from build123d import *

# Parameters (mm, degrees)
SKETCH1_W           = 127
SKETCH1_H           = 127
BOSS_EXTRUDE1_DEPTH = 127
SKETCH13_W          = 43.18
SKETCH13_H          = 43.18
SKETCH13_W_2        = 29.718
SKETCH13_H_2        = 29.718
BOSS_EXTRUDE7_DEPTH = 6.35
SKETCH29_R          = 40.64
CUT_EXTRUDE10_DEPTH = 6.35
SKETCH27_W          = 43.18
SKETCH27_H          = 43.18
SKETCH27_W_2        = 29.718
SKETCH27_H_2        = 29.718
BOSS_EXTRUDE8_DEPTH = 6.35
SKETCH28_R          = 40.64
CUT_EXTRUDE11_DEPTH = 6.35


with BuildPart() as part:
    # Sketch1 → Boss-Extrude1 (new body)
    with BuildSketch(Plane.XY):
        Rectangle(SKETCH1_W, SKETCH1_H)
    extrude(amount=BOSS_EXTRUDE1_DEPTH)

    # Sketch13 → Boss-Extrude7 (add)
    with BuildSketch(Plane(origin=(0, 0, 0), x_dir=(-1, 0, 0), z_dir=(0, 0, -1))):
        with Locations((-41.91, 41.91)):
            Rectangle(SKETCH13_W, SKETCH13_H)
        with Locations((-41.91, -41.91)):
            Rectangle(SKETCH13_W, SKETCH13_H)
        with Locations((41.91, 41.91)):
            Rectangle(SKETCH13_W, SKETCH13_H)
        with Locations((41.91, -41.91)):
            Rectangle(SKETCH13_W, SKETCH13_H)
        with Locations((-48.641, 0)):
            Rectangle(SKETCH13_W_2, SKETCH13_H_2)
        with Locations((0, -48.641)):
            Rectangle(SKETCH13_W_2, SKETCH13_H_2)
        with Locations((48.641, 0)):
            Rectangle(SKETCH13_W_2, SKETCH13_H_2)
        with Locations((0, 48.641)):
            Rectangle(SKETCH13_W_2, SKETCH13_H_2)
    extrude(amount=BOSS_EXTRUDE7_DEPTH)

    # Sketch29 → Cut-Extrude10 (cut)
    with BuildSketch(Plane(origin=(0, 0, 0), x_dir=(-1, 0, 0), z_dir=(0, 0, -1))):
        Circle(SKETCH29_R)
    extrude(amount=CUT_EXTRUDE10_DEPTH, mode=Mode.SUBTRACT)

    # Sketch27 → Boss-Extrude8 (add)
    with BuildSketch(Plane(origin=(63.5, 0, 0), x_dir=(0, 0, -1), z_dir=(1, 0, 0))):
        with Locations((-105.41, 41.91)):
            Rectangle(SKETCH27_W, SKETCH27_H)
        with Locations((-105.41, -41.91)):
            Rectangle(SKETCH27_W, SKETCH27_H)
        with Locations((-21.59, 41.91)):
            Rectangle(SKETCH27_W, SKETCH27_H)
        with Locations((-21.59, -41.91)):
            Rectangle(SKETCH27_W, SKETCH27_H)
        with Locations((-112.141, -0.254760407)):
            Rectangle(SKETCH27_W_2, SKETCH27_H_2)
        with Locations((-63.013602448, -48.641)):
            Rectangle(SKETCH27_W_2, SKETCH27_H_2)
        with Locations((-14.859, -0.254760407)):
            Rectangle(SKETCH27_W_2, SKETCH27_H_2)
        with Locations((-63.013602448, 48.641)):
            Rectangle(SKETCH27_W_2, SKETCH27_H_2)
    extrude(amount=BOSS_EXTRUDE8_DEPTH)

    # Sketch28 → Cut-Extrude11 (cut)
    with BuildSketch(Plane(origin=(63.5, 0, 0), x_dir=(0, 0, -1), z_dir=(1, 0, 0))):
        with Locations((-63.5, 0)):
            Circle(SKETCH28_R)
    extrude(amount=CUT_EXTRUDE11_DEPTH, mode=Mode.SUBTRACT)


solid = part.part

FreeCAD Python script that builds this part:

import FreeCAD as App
import Part
import Sketcher
from FreeCAD import Vector
Q = App.Units.Quantity

doc = App.newDocument("Part")
body = doc.addObject("PartDesign::Body", "Body")

# Sketch on XY plane
sketch1 = body.newObject("Sketcher::SketchObject", "Sketch")
sketch1.AttachmentSupport = (doc.getObject("XY_Plane"), [""])
sketch1.MapMode = "FlatFace"
sketch1.addGeometry(Part.LineSegment(Vector(-64, 64, 0), Vector(-64, -64, 0)), False)
sketch1.addGeometry(Part.LineSegment(Vector(-64, -64, 0), Vector(64, -64, 0)), False)
sketch1.addGeometry(Part.LineSegment(Vector(64, -64, 0), Vector(64, 64, 0)), False)
sketch1.addGeometry(Part.LineSegment(Vector(64, 64, 0), Vector(-64, 64, 0)), False)
sketch1.addConstraint(Sketcher.Constraint("Coincident", 0, 2, 1, 1))
sketch1.addConstraint(Sketcher.Constraint("Coincident", 1, 2, 2, 1))
sketch1.addConstraint(Sketcher.Constraint("Coincident", 2, 2, 3, 1))
sketch1.addConstraint(Sketcher.Constraint("Coincident", 3, 2, 0, 1))
sketch1.addConstraint(Sketcher.Constraint("Vertical", 0))
sketch1.addConstraint(Sketcher.Constraint("Horizontal", 1))
sketch1.addConstraint(Sketcher.Constraint("Vertical", 2))
sketch1.addConstraint(Sketcher.Constraint("Horizontal", 3))
sketch1.addConstraint(Sketcher.Constraint("Symmetric", 0, 2, 2, 2, -1, 1))
sketch1.addConstraint(Sketcher.Constraint("Equal", 3, 0))
sketch1.addConstraint(Sketcher.Constraint("DistanceX", 1, 1, 1, 2, Q("5 in")))
pad1 = body.newObject("PartDesign::Pad", "Pad")
pad1.Profile = sketch1
pad1.Length = Q("5 in")

# Sketch on XY plane
sketch2 = body.newObject("Sketcher::SketchObject", "Sketch001")
sketch2.AttachmentSupport = (doc.getObject("XY_Plane"), [""])
sketch2.MapMode = "FlatFace"
sketch2.addGeometry(Part.LineSegment(Vector(64, 64, 0), Vector(64, 20, 0)), False)
sketch2.addGeometry(Part.LineSegment(Vector(64, 20, 0), Vector(20, 20, 0)), False)
sketch2.addGeometry(Part.LineSegment(Vector(20, 20, 0), Vector(20, 64, 0)), False)
sketch2.addGeometry(Part.LineSegment(Vector(20, 64, 0), Vector(64, 64, 0)), False)
sketch2.addGeometry(Part.LineSegment(Vector(64, -20, 0), Vector(64, -64, 0)), False)
sketch2.addGeometry(Part.LineSegment(Vector(64, -64, 0), Vector(20, -64, 0)), False)
sketch2.addGeometry(Part.LineSegment(Vector(20, -64, 0), Vector(20, -20, 0)), False)
sketch2.addGeometry(Part.LineSegment(Vector(20, -20, 0), Vector(64, -20, 0)), False)
sketch2.addGeometry(Part.LineSegment(Vector(-20, 64, 0), Vector(-20, 20, 0)), False)
sketch2.addGeometry(Part.LineSegment(Vector(-20, 20, 0), Vector(-64, 20, 0)), False)
sketch2.addGeometry(Part.LineSegment(Vector(-64, 20, 0), Vector(-64, 64, 0)), False)
sketch2.addGeometry(Part.LineSegment(Vector(-64, 64, 0), Vector(-20, 64, 0)), False)
sketch2.addGeometry(Part.LineSegment(Vector(-20, -20, 0), Vector(-20, -64, 0)), False)
sketch2.addGeometry(Part.LineSegment(Vector(-20, -64, 0), Vector(-64, -64, 0)), False)
sketch2.addGeometry(Part.LineSegment(Vector(-64, -64, 0), Vector(-64, -20, 0)), False)
sketch2.addGeometry(Part.LineSegment(Vector(-64, -20, 0), Vector(-20, -20, 0)), False)
sketch2.addGeometry(Part.LineSegment(Vector(64, 15, 0), Vector(64, -15, 0)), False)
sketch2.addGeometry(Part.LineSegment(Vector(64, -15, 0), Vector(34, -15, 0)), False)
sketch2.addGeometry(Part.LineSegment(Vector(34, -15, 0), Vector(34, 15, 0)), False)
sketch2.addGeometry(Part.LineSegment(Vector(34, 15, 0), Vector(64, 15, 0)), False)
sketch2.addGeometry(Part.LineSegment(Vector(15, -34, 0), Vector(15, -64, 0)), False)
sketch2.addGeometry(Part.LineSegment(Vector(15, -64, 0), Vector(-15, -64, 0)), False)
sketch2.addGeometry(Part.LineSegment(Vector(-15, -64, 0), Vector(-15, -34, 0)), False)
sketch2.addGeometry(Part.LineSegment(Vector(-15, -34, 0), Vector(15, -34, 0)), False)
sketch2.addGeometry(Part.LineSegment(Vector(-34, 15, 0), Vector(-34, -15, 0)), False)
sketch2.addGeometry(Part.LineSegment(Vector(-34, -15, 0), Vector(-64, -15, 0)), False)
sketch2.addGeometry(Part.LineSegment(Vector(-64, -15, 0), Vector(-64, 15, 0)), False)
sketch2.addGeometry(Part.LineSegment(Vector(-64, 15, 0), Vector(-34, 15, 0)), False)
sketch2.addGeometry(Part.LineSegment(Vector(15, 64, 0), Vector(15, 34, 0)), False)
sketch2.addGeometry(Part.LineSegment(Vector(15, 34, 0), Vector(-15, 34, 0)), False)
sketch2.addGeometry(Part.LineSegment(Vector(-15, 34, 0), Vector(-15, 64, 0)), False)
sketch2.addGeometry(Part.LineSegment(Vector(-15, 64, 0), Vector(15, 64, 0)), False)
sketch2.addConstraint(Sketcher.Constraint("Coincident", 0, 2, 1, 1))
sketch2.addConstraint(Sketcher.Constraint("Coincident", 1, 2, 2, 1))
sketch2.addConstraint(Sketcher.Constraint("Coincident", 2, 2, 3, 1))
sketch2.addConstraint(Sketcher.Constraint("Coincident", 3, 2, 0, 1))
sketch2.addConstraint(Sketcher.Constraint("Coincident", 4, 2, 5, 1))
sketch2.addConstraint(Sketcher.Constraint("Coincident", 5, 2, 6, 1))
sketch2.addConstraint(Sketcher.Constraint("Coincident", 6, 2, 7, 1))
sketch2.addConstraint(Sketcher.Constraint("Coincident", 7, 2, 4, 1))
sketch2.addConstraint(Sketcher.Constraint("Coincident", 8, 2, 9, 1))
sketch2.addConstraint(Sketcher.Constraint("Coincident", 9, 2, 10, 1))
sketch2.addConstraint(Sketcher.Constraint("Coincident", 10, 2, 11, 1))
sketch2.addConstraint(Sketcher.Constraint("Coincident", 11, 2, 8, 1))
sketch2.addConstraint(Sketcher.Constraint("Coincident", 12, 2, 13, 1))
sketch2.addConstraint(Sketcher.Constraint("Coincident", 13, 2, 14, 1))
sketch2.addConstraint(Sketcher.Constraint("Coincident", 14, 2, 15, 1))
sketch2.addConstraint(Sketcher.Constraint("Coincident", 15, 2, 12, 1))
sketch2.addConstraint(Sketcher.Constraint("Coincident", 16, 2, 17, 1))
sketch2.addConstraint(Sketcher.Constraint("Coincident", 17, 2, 18, 1))
sketch2.addConstraint(Sketcher.Constraint("Coincident", 18, 2, 19, 1))
sketch2.addConstraint(Sketcher.Constraint("Coincident", 19, 2, 16, 1))
sketch2.addConstraint(Sketcher.Constraint("Coincident", 20, 2, 21, 1))
sketch2.addConstraint(Sketcher.Constraint("Coincident", 21, 2, 22, 1))
sketch2.addConstraint(Sketcher.Constraint("Coincident", 22, 2, 23, 1))
sketch2.addConstraint(Sketcher.Constraint("Coincident", 23, 2, 20, 1))
sketch2.addConstraint(Sketcher.Constraint("Coincident", 24, 2, 25, 1))
sketch2.addConstraint(Sketcher.Constraint("Coincident", 25, 2, 26, 1))
sketch2.addConstraint(Sketcher.Constraint("Coincident", 26, 2, 27, 1))
sketch2.addConstraint(Sketcher.Constraint("Coincident", 27, 2, 24, 1))
sketch2.addConstraint(Sketcher.Constraint("Coincident", 28, 2, 29, 1))
sketch2.addConstraint(Sketcher.Constraint("Coincident", 29, 2, 30, 1))
sketch2.addConstraint(Sketcher.Constraint("Coincident", 30, 2, 31, 1))
sketch2.addConstraint(Sketcher.Constraint("Coincident", 31, 2, 28, 1))
sketch2.addConstraint(Sketcher.Constraint("Vertical", 0))
sketch2.addConstraint(Sketcher.Constraint("Horizontal", 1))
sketch2.addConstraint(Sketcher.Constraint("Vertical", 2))
sketch2.addConstraint(Sketcher.Constraint("Horizontal", 3))
sketch2.addConstraint(Sketcher.Constraint("Vertical", 4))
sketch2.addConstraint(Sketcher.Constraint("Horizontal", 5))
sketch2.addConstraint(Sketcher.Constraint("Vertical", 6))
sketch2.addConstraint(Sketcher.Constraint("Horizontal", 7))
sketch2.addConstraint(Sketcher.Constraint("Vertical", 8))
sketch2.addConstraint(Sketcher.Constraint("Horizontal", 9))
sketch2.addConstraint(Sketcher.Constraint("Vertical", 10))
sketch2.addConstraint(Sketcher.Constraint("Horizontal", 11))
sketch2.addConstraint(Sketcher.Constraint("Vertical", 12))
sketch2.addConstraint(Sketcher.Constraint("Horizontal", 13))
sketch2.addConstraint(Sketcher.Constraint("Vertical", 14))
sketch2.addConstraint(Sketcher.Constraint("Horizontal", 15))
sketch2.addConstraint(Sketcher.Constraint("Vertical", 16))
sketch2.addConstraint(Sketcher.Constraint("Horizontal", 17))
sketch2.addConstraint(Sketcher.Constraint("Vertical", 18))
sketch2.addConstraint(Sketcher.Constraint("Horizontal", 19))
sketch2.addConstraint(Sketcher.Constraint("Vertical", 20))
sketch2.addConstraint(Sketcher.Constraint("Horizontal", 21))
sketch2.addConstraint(Sketcher.Constraint("Vertical", 22))
sketch2.addConstraint(Sketcher.Constraint("Horizontal", 23))
sketch2.addConstraint(Sketcher.Constraint("Vertical", 24))
sketch2.addConstraint(Sketcher.Constraint("Horizontal", 25))
sketch2.addConstraint(Sketcher.Constraint("Vertical", 26))
sketch2.addConstraint(Sketcher.Constraint("Horizontal", 27))
sketch2.addConstraint(Sketcher.Constraint("Vertical", 28))
sketch2.addConstraint(Sketcher.Constraint("Horizontal", 29))
sketch2.addConstraint(Sketcher.Constraint("Vertical", 30))
sketch2.addConstraint(Sketcher.Constraint("Horizontal", 31))
sketch2.addConstraint(Sketcher.Constraint("Symmetric", 6, 2, 8, 2, -1, 1))
sketch2.addConstraint(Sketcher.Constraint("Symmetric", 4, 2, 10, 2, -1, 1))
sketch2.addConstraint(Sketcher.Constraint("Symmetric", 2, 2, 12, 2, -1, 1))
sketch2.addConstraint(Sketcher.Constraint("Symmetric", 0, 2, 14, 2, -1, 1))
sketch2.addConstraint(Sketcher.Constraint("Symmetric", 18, 2, 24, 2, -1, 1))
sketch2.addConstraint(Sketcher.Constraint("Symmetric", 16, 2, 26, 2, -1, 1))
sketch2.addConstraint(Sketcher.Constraint("Symmetric", 22, 2, 28, 2, -1, 1))
sketch2.addConstraint(Sketcher.Constraint("Symmetric", 20, 2, 30, 2, -1, 1))
sketch2.addConstraint(Sketcher.Constraint("Symmetric", 1, 2, 8, 2, -2))
sketch2.addConstraint(Sketcher.Constraint("Symmetric", 3, 2, 10, 2, -2))
sketch2.addConstraint(Sketcher.Constraint("Horizontal", 13, 2, 20, 2))
sketch2.addConstraint(Sketcher.Constraint("Horizontal", 17, 2, 24, 2))
sketch2.addConstraint(Sketcher.Constraint("Vertical", 7, 2, 16, 2))
sketch2.addConstraint(Sketcher.Constraint("Vertical", 23, 2, 28, 2))
sketch2.addConstraint(Sketcher.Constraint("Equal", 19, 21))
sketch2.addConstraint(Sketcher.Constraint("Equal", 15, 0))
sketch2.addConstraint(Sketcher.Constraint("Equal", 31, 16))
sketch2.addConstraint(Sketcher.Constraint("Equal", 18, 20))
sketch2.addConstraint(Sketcher.Constraint("DistanceX", 1, 2, 1, 1, Q("1.7 in")))
sketch2.addConstraint(Sketcher.Constraint("DistanceY", 4, 2, 3, 2, Q("5 in")))
sketch2.addConstraint(Sketcher.Constraint("DistanceX", 17, 2, 17, 1, Q("1.17 in")))
sketch2.addConstraint(Sketcher.Constraint("DistanceX", -1, 1, 0, 2, Q("2.5 in")))
pad2 = body.newObject("PartDesign::Pad", "Pad001")
pad2.Profile = sketch2
pad2.Length = Q("0.25 in")
pad2.Reversed = True

# Sketch on XY plane
sketch3 = body.newObject("Sketcher::SketchObject", "Sketch002")
sketch3.AttachmentSupport = (doc.getObject("XY_Plane"), [""])
sketch3.MapMode = "FlatFace"
sketch3.addGeometry(Part.Circle(Vector(0, 0, 0), Vector(0, 0, 1), 41), False)
sketch3.addConstraint(Sketcher.Constraint("Coincident", 0, 3, -1, 1))
sketch3.addConstraint(Sketcher.Constraint("Diameter", 0, Q("3.2 in")))
pocket1 = body.newObject("PartDesign::Pocket", "Pocket")
pocket1.Profile = sketch3
pocket1.Length = Q("0.25 in")

# Sketch on YZ plane
sketch4 = body.newObject("Sketcher::SketchObject", "Sketch003")
sketch4.AttachmentSupport = (doc.getObject("YZ_Plane"), [""])
sketch4.MapMode = "FlatFace"
sketch4.AttachmentOffset = App.Placement(Vector(0, 0, 2.5 * 25.4), App.Rotation())
sketch4.addGeometry(Part.LineSegment(Vector(64, 127, 0), Vector(20, 127, 0)), False)
sketch4.addGeometry(Part.LineSegment(Vector(20, 127, 0), Vector(20, 84, 0)), False)
sketch4.addGeometry(Part.LineSegment(Vector(20, 84, 0), Vector(64, 84, 0)), False)
sketch4.addGeometry(Part.LineSegment(Vector(64, 84, 0), Vector(64, 127, 0)), False)
sketch4.addGeometry(Part.LineSegment(Vector(-20, 127, 0), Vector(-64, 127, 0)), False)
sketch4.addGeometry(Part.LineSegment(Vector(-64, 127, 0), Vector(-64, 84, 0)), False)
sketch4.addGeometry(Part.LineSegment(Vector(-64, 84, 0), Vector(-20, 84, 0)), False)
sketch4.addGeometry(Part.LineSegment(Vector(-20, 84, 0), Vector(-20, 127, 0)), False)
sketch4.addGeometry(Part.LineSegment(Vector(64, 43, 0), Vector(20, 43, 0)), False)
sketch4.addGeometry(Part.LineSegment(Vector(20, 43, 0), Vector(20, 0, 0)), False)
sketch4.addGeometry(Part.LineSegment(Vector(20, 0, 0), Vector(64, 0, 0)), False)
sketch4.addGeometry(Part.LineSegment(Vector(64, 0, 0), Vector(64, 43, 0)), False)
sketch4.addGeometry(Part.LineSegment(Vector(-20, 43, 0), Vector(-64, 43, 0)), False)
sketch4.addGeometry(Part.LineSegment(Vector(-64, 43, 0), Vector(-64, 0, 0)), False)
sketch4.addGeometry(Part.LineSegment(Vector(-64, 0, 0), Vector(-20, 0, 0)), False)
sketch4.addGeometry(Part.LineSegment(Vector(-20, 0, 0), Vector(-20, 43, 0)), False)
sketch4.addGeometry(Part.LineSegment(Vector(15, 127, 0), Vector(-15, 127, 0)), False)
sketch4.addGeometry(Part.LineSegment(Vector(-15, 127, 0), Vector(-15, 97, 0)), False)
sketch4.addGeometry(Part.LineSegment(Vector(-15, 97, 0), Vector(15, 97, 0)), False)
sketch4.addGeometry(Part.LineSegment(Vector(15, 97, 0), Vector(15, 127, 0)), False)
sketch4.addGeometry(Part.LineSegment(Vector(-34, 78, 0), Vector(-64, 78, 0)), False)
sketch4.addGeometry(Part.LineSegment(Vector(-64, 78, 0), Vector(-64, 48, 0)), False)
sketch4.addGeometry(Part.LineSegment(Vector(-64, 48, 0), Vector(-34, 48, 0)), False)
sketch4.addGeometry(Part.LineSegment(Vector(-34, 48, 0), Vector(-34, 78, 0)), False)
sketch4.addGeometry(Part.LineSegment(Vector(15, 30, 0), Vector(-15, 30, 0)), False)
sketch4.addGeometry(Part.LineSegment(Vector(-15, 30, 0), Vector(-15, 0, 0)), False)
sketch4.addGeometry(Part.LineSegment(Vector(-15, 0, 0), Vector(15, 0, 0)), False)
sketch4.addGeometry(Part.LineSegment(Vector(15, 0, 0), Vector(15, 30, 0)), False)
sketch4.addGeometry(Part.LineSegment(Vector(64, 78, 0), Vector(34, 78, 0)), False)
sketch4.addGeometry(Part.LineSegment(Vector(34, 78, 0), Vector(34, 48, 0)), False)
sketch4.addGeometry(Part.LineSegment(Vector(34, 48, 0), Vector(64, 48, 0)), False)
sketch4.addGeometry(Part.LineSegment(Vector(64, 48, 0), Vector(64, 78, 0)), False)
sketch4.addConstraint(Sketcher.Constraint("Coincident", 0, 2, 1, 1))
sketch4.addConstraint(Sketcher.Constraint("Coincident", 1, 2, 2, 1))
sketch4.addConstraint(Sketcher.Constraint("Coincident", 2, 2, 3, 1))
sketch4.addConstraint(Sketcher.Constraint("Coincident", 3, 2, 0, 1))
sketch4.addConstraint(Sketcher.Constraint("Coincident", 4, 2, 5, 1))
sketch4.addConstraint(Sketcher.Constraint("Coincident", 5, 2, 6, 1))
sketch4.addConstraint(Sketcher.Constraint("Coincident", 6, 2, 7, 1))
sketch4.addConstraint(Sketcher.Constraint("Coincident", 7, 2, 4, 1))
sketch4.addConstraint(Sketcher.Constraint("Coincident", 8, 2, 9, 1))
sketch4.addConstraint(Sketcher.Constraint("Coincident", 9, 2, 10, 1))
sketch4.addConstraint(Sketcher.Constraint("Coincident", 10, 2, 11, 1))
sketch4.addConstraint(Sketcher.Constraint("Coincident", 11, 2, 8, 1))
sketch4.addConstraint(Sketcher.Constraint("Coincident", 12, 2, 13, 1))
sketch4.addConstraint(Sketcher.Constraint("Coincident", 13, 2, 14, 1))
sketch4.addConstraint(Sketcher.Constraint("Coincident", 14, 2, 15, 1))
sketch4.addConstraint(Sketcher.Constraint("Coincident", 15, 2, 12, 1))
sketch4.addConstraint(Sketcher.Constraint("Coincident", 16, 2, 17, 1))
sketch4.addConstraint(Sketcher.Constraint("Coincident", 17, 2, 18, 1))
sketch4.addConstraint(Sketcher.Constraint("Coincident", 18, 2, 19, 1))
sketch4.addConstraint(Sketcher.Constraint("Coincident", 19, 2, 16, 1))
sketch4.addConstraint(Sketcher.Constraint("Coincident", 20, 2, 21, 1))
sketch4.addConstraint(Sketcher.Constraint("Coincident", 21, 2, 22, 1))
sketch4.addConstraint(Sketcher.Constraint("Coincident", 22, 2, 23, 1))
sketch4.addConstraint(Sketcher.Constraint("Coincident", 23, 2, 20, 1))
sketch4.addConstraint(Sketcher.Constraint("Coincident", 24, 2, 25, 1))
sketch4.addConstraint(Sketcher.Constraint("Coincident", 25, 2, 26, 1))
sketch4.addConstraint(Sketcher.Constraint("Coincident", 26, 2, 27, 1))
sketch4.addConstraint(Sketcher.Constraint("Coincident", 27, 2, 24, 1))
sketch4.addConstraint(Sketcher.Constraint("Coincident", 28, 2, 29, 1))
sketch4.addConstraint(Sketcher.Constraint("Coincident", 29, 2, 30, 1))
sketch4.addConstraint(Sketcher.Constraint("Coincident", 30, 2, 31, 1))
sketch4.addConstraint(Sketcher.Constraint("Coincident", 31, 2, 28, 1))
sketch4.addConstraint(Sketcher.Constraint("Horizontal", 0))
sketch4.addConstraint(Sketcher.Constraint("Vertical", 1))
sketch4.addConstraint(Sketcher.Constraint("Horizontal", 2))
sketch4.addConstraint(Sketcher.Constraint("Vertical", 3))
sketch4.addConstraint(Sketcher.Constraint("Horizontal", 4))
sketch4.addConstraint(Sketcher.Constraint("Vertical", 5))
sketch4.addConstraint(Sketcher.Constraint("Horizontal", 6))
sketch4.addConstraint(Sketcher.Constraint("Vertical", 7))
sketch4.addConstraint(Sketcher.Constraint("Horizontal", 8))
sketch4.addConstraint(Sketcher.Constraint("Vertical", 9))
sketch4.addConstraint(Sketcher.Constraint("Horizontal", 10))
sketch4.addConstraint(Sketcher.Constraint("Vertical", 11))
sketch4.addConstraint(Sketcher.Constraint("Horizontal", 12))
sketch4.addConstraint(Sketcher.Constraint("Vertical", 13))
sketch4.addConstraint(Sketcher.Constraint("Horizontal", 14))
sketch4.addConstraint(Sketcher.Constraint("Vertical", 15))
sketch4.addConstraint(Sketcher.Constraint("Horizontal", 16))
sketch4.addConstraint(Sketcher.Constraint("Vertical", 17))
sketch4.addConstraint(Sketcher.Constraint("Horizontal", 18))
sketch4.addConstraint(Sketcher.Constraint("Vertical", 19))
sketch4.addConstraint(Sketcher.Constraint("Horizontal", 20))
sketch4.addConstraint(Sketcher.Constraint("Vertical", 21))
sketch4.addConstraint(Sketcher.Constraint("Horizontal", 22))
sketch4.addConstraint(Sketcher.Constraint("Vertical", 23))
sketch4.addConstraint(Sketcher.Constraint("Horizontal", 24))
sketch4.addConstraint(Sketcher.Constraint("Vertical", 25))
sketch4.addConstraint(Sketcher.Constraint("Horizontal", 26))
sketch4.addConstraint(Sketcher.Constraint("Vertical", 27))
sketch4.addConstraint(Sketcher.Constraint("Horizontal", 28))
sketch4.addConstraint(Sketcher.Constraint("Vertical", 29))
sketch4.addConstraint(Sketcher.Constraint("Horizontal", 30))
sketch4.addConstraint(Sketcher.Constraint("Vertical", 31))
sketch4.addConstraint(Sketcher.Constraint("Symmetric", 10, 2, 13, 2, -1, 1))
sketch4.addConstraint(Sketcher.Constraint("Symmetric", 3, 2, 4, 2, -2))
sketch4.addConstraint(Sketcher.Constraint("Symmetric", 1, 2, 6, 2, -2))
sketch4.addConstraint(Sketcher.Constraint("Symmetric", 9, 2, 14, 2, -2))
sketch4.addConstraint(Sketcher.Constraint("Symmetric", 23, 2, 28, 2, -2))
sketch4.addConstraint(Sketcher.Constraint("Symmetric", 21, 2, 30, 2, -2))
sketch4.addConstraint(Sketcher.Constraint("PointOnObject", 25, 2, -1))
sketch4.addConstraint(Sketcher.Constraint("Horizontal", 11, 2, 12, 2))
sketch4.addConstraint(Sketcher.Constraint("Horizontal", 7, 2, 16, 2))
sketch4.addConstraint(Sketcher.Constraint("Vertical", 1, 2, 8, 2))
sketch4.addConstraint(Sketcher.Constraint("Vertical", 3, 2, 10, 2))
sketch4.addConstraint(Sketcher.Constraint("Vertical", 13, 2, 20, 2))
sketch4.addConstraint(Sketcher.Constraint("Vertical", 17, 2, 24, 2))
sketch4.addConstraint(Sketcher.Constraint("Vertical", 19, 2, 26, 2))
sketch4.addConstraint(Sketcher.Constraint("Equal", 18, 20))
sketch4.addConstraint(Sketcher.Constraint("Equal", 14, 1))
sketch4.addConstraint(Sketcher.Constraint("Equal", 7, 9))
sketch4.addConstraint(Sketcher.Constraint("Equal", 30, 17))
sketch4.addConstraint(Sketcher.Constraint("Equal", 19, 21))
sketch4.addConstraint(Sketcher.Constraint("Equal", 23, 25))
sketch4.addConstraint(Sketcher.Constraint("DistanceX", 0, 2, 0, 1, Q("1.7 in")))
sketch4.addConstraint(Sketcher.Constraint("DistanceY", -1, 1, 0, 2, Q("5 in")))
sketch4.addConstraint(Sketcher.Constraint("DistanceX", 4, 2, 3, 2, Q("5 in")))
sketch4.addConstraint(Sketcher.Constraint("DistanceX", 16, 2, 16, 1, Q("1.17 in")))
sketch4.addConstraint(Sketcher.Constraint("DistanceX", 16, 2, -1, 1, Q("15.11376 mm")))
sketch4.addConstraint(Sketcher.Constraint("DistanceY", -1, 1, 20, 2, Q("77.872602 mm")))
pad3 = body.newObject("PartDesign::Pad", "Pad002")
pad3.Profile = sketch4
pad3.Length = Q("0.25 in")

# Sketch on YZ plane
sketch5 = body.newObject("Sketcher::SketchObject", "Sketch004")
sketch5.AttachmentSupport = (doc.getObject("YZ_Plane"), [""])
sketch5.MapMode = "FlatFace"
sketch5.AttachmentOffset = App.Placement(Vector(0, 0, 2.5 * 25.4), App.Rotation())
sketch5.addGeometry(Part.Circle(Vector(0, 64, 0), Vector(0, 0, 1), 41), False)
sketch5.addConstraint(Sketcher.Constraint("PointOnObject", 0, 3, -2))
sketch5.addConstraint(Sketcher.Constraint("Diameter", 0, Q("3.2 in")))
sketch5.addConstraint(Sketcher.Constraint("DistanceY", -1, 1, 0, 3, Q("2.5 in")))
pocket2 = body.newObject("PartDesign::Pocket", "Pocket001")
pocket2.Profile = sketch5
pocket2.Length = Q("0.25 in")
pocket2.Reversed = True

doc.recompute()
